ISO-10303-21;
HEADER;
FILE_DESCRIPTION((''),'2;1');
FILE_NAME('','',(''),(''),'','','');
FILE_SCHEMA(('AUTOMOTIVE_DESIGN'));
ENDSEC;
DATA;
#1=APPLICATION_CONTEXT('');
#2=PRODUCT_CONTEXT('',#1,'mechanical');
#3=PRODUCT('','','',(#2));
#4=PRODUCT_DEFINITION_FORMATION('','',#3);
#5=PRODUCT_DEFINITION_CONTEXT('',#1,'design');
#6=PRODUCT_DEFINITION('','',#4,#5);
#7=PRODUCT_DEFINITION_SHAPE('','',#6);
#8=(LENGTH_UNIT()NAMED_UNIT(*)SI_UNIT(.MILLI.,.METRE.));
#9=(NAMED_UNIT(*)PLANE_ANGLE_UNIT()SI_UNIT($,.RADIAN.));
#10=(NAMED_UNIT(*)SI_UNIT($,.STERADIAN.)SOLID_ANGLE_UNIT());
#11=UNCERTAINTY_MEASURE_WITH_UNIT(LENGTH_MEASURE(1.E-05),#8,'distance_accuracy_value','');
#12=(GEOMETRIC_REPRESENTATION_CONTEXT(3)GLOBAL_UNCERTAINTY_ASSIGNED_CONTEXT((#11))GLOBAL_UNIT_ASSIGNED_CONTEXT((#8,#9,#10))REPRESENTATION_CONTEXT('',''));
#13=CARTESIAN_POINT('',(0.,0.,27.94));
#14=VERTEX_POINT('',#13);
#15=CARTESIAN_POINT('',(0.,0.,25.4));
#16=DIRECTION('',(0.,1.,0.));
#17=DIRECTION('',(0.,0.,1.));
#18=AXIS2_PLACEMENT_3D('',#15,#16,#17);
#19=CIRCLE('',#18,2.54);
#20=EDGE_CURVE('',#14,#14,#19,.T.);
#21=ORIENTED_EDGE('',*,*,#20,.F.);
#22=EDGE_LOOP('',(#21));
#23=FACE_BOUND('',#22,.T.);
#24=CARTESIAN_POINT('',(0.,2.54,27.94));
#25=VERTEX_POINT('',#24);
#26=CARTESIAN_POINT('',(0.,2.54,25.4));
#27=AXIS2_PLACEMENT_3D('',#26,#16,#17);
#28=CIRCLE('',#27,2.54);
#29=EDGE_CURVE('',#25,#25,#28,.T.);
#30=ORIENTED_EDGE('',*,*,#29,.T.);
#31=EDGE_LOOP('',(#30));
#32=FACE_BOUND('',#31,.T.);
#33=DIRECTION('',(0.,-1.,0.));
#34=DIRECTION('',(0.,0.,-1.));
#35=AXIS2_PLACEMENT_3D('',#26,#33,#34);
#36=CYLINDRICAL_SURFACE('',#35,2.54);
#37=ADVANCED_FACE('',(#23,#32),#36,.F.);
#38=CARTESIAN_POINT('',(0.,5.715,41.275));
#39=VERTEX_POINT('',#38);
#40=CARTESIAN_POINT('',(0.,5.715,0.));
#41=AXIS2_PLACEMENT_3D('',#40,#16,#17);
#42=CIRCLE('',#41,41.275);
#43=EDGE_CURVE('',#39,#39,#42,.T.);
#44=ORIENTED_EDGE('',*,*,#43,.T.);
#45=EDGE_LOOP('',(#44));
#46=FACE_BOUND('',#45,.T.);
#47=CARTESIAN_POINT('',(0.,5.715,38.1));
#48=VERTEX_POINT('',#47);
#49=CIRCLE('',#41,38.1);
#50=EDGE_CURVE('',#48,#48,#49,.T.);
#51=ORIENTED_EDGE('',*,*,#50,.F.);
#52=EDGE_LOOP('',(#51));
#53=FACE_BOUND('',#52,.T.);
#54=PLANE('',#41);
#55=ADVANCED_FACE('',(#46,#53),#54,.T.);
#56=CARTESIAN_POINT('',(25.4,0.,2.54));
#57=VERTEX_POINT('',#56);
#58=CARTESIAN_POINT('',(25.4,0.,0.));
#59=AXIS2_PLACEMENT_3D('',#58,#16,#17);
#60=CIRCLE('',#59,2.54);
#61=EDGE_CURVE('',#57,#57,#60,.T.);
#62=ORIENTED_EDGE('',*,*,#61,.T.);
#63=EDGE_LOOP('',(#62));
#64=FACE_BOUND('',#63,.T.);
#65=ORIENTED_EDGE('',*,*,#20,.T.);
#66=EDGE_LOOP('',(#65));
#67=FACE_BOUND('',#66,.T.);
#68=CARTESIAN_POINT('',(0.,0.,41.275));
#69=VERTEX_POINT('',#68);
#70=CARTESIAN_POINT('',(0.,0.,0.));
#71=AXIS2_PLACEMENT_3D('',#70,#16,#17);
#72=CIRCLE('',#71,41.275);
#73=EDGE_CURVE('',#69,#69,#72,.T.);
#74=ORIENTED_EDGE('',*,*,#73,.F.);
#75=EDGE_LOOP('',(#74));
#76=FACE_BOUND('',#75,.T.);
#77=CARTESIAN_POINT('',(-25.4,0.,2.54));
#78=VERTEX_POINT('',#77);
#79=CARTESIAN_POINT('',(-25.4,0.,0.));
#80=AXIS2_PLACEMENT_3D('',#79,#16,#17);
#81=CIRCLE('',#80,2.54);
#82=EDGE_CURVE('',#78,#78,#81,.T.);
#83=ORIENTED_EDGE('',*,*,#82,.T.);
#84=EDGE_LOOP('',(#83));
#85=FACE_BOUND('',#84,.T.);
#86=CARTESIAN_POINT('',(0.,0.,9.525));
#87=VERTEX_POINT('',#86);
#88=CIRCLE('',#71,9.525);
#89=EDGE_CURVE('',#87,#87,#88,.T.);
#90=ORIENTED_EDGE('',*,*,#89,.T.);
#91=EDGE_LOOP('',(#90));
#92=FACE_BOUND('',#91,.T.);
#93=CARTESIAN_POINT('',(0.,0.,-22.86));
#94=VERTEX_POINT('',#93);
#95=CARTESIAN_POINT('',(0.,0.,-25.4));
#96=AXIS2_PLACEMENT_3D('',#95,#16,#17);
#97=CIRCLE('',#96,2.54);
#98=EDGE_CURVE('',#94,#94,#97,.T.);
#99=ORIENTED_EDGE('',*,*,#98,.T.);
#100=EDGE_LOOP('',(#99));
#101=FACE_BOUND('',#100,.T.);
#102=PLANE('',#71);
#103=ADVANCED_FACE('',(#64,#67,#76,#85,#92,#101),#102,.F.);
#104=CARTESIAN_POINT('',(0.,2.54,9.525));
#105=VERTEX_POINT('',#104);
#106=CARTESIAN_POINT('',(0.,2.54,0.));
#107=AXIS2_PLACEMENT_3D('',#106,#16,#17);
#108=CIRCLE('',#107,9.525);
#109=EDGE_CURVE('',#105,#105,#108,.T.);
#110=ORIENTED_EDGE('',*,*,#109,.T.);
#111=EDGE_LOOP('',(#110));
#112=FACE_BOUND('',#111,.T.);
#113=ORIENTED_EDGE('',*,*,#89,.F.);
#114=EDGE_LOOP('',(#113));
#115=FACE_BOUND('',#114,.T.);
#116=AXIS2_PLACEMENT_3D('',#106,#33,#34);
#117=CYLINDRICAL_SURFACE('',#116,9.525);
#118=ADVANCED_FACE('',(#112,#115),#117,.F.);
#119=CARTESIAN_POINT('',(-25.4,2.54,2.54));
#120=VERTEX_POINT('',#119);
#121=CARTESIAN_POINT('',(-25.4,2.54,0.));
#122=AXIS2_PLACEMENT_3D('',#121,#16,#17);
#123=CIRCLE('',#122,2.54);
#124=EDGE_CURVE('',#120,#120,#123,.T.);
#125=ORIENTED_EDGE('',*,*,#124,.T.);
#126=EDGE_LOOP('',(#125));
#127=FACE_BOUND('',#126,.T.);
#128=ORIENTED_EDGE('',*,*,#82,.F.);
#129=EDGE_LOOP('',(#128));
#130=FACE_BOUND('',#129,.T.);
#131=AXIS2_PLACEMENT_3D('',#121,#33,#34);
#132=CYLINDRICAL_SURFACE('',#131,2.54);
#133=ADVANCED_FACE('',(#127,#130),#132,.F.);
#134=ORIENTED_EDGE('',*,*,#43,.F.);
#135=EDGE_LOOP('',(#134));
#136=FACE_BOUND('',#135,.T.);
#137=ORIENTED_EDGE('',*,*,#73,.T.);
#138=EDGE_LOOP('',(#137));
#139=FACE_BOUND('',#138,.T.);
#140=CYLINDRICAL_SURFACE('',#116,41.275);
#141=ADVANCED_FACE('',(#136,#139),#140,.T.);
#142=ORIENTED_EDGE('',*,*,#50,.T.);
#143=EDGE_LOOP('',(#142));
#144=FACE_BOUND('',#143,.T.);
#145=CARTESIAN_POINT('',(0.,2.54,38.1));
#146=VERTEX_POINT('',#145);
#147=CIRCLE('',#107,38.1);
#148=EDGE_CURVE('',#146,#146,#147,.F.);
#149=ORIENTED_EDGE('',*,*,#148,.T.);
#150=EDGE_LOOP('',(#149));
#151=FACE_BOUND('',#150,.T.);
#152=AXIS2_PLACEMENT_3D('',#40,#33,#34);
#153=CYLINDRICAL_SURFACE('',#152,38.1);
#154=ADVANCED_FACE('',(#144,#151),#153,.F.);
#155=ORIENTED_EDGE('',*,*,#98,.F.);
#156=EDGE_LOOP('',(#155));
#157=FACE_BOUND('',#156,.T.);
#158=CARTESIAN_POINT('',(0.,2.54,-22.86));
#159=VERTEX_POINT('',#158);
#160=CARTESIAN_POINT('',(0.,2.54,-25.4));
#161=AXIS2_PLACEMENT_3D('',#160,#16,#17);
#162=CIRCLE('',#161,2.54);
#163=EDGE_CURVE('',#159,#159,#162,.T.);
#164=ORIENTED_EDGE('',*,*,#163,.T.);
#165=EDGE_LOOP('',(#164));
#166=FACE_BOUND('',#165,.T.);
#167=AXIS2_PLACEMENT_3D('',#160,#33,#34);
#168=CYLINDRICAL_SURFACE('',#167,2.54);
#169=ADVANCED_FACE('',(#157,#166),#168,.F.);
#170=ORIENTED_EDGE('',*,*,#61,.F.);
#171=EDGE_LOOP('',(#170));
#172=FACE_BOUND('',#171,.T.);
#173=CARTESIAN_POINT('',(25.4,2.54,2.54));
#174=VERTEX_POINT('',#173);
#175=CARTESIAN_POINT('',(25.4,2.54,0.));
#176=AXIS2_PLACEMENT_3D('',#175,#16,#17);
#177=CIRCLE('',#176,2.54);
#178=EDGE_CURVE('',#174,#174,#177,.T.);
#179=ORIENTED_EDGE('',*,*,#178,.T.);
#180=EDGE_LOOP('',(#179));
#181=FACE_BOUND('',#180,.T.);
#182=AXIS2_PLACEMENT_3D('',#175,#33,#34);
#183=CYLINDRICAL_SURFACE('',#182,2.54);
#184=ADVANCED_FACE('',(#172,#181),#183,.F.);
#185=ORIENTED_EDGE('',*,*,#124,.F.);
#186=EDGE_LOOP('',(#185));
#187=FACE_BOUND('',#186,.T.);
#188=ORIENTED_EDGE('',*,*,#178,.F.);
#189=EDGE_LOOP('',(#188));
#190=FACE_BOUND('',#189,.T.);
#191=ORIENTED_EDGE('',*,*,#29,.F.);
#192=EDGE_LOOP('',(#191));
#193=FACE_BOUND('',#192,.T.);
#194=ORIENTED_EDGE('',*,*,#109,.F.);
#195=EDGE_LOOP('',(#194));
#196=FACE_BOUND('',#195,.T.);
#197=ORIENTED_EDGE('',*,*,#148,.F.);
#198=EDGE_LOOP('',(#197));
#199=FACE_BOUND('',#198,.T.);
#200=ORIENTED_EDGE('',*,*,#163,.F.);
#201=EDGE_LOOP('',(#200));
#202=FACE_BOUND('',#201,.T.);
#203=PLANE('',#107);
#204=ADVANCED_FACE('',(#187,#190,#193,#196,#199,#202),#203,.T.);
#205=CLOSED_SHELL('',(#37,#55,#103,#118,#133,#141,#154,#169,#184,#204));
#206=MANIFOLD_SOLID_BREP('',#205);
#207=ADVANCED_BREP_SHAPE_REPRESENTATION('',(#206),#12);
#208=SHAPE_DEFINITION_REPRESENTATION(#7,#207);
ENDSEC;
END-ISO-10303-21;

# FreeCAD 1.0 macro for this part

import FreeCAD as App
import Part
import Sketcher
Q = App.Units.Quantity

doc = App.newDocument("Part")
body = doc.addObject("PartDesign::Body", "Body")

# Sketch on XZ plane
sketch1 = doc.addObject("Sketcher::SketchObject", "Sketch")
body.addObject(sketch1)
sketch1.AttachmentSupport = (doc.XZ_Plane, [""])
sketch1.MapMode = "FlatFace"
sketch1.addGeometry(Part.Circle(App.Vector(0, 0, 0), App.Vector(0, 0, 1), 41.275), False)
sketch1.addGeometry(Part.Circle(App.Vector(0, -25.4, 0), App.Vector(0, 0, 1), 2.54), False)
sketch1.addGeometry(Part.Circle(App.Vector(-25.4, 0, 0), App.Vector(0, 0, 1), 2.54), False)
sketch1.addGeometry(Part.Circle(App.Vector(25.4, 0, 0), App.Vector(0, 0, 1), 2.54), False)
sketch1.addGeometry(Part.Circle(App.Vector(0, 0, 0), App.Vector(0, 0, 1), 9.525), False)
sketch1.addGeometry(Part.Circle(App.Vector(0, 25.4, 0), App.Vector(0, 0, 1), 2.54), False)
sketch1.addConstraint(Sketcher.Constraint("Coincident", 0, 3, -1, 1))
sketch1.addConstraint(Sketcher.Constraint("Coincident", 4, 3, -1, 1))
sketch1.addConstraint(Sketcher.Constraint("Equal", 1, 2))
sketch1.addConstraint(Sketcher.Constraint("Equal", 2, 3))
sketch1.addConstraint(Sketcher.Constraint("Equal", 3, 5))
sketch1.addConstraint(Sketcher.Constraint("Symmetric", 2, 3, 3, 3, -1, 1))
sketch1.addConstraint(Sketcher.Constraint("Symmetric", 1, 3, 5, 3, -1, 1))
sketch1.addConstraint(Sketcher.Constraint("PointOnObject", 1, 3, -2))
sketch1.addConstraint(Sketcher.Constraint("PointOnObject", 2, 3, -1))
sketch1.addConstraint(Sketcher.Constraint("Diameter", 1, Q("0.2 in")))
sketch1.addConstraint(Sketcher.Constraint("Diameter", 0, Q("3.25 in")))
sketch1.addConstraint(Sketcher.Constraint("Diameter", 4, Q("0.75 in")))
sketch1.addConstraint(Sketcher.Constraint("DistanceY", 1, 3, -1, 1, Q("1 in")))
sketch1.addConstraint(Sketcher.Constraint("DistanceX", 2, 3, -1, 1, Q("1 in")))
pad1 = doc.addObject("PartDesign::Pad", "Pad")
body.addObject(pad1)
pad1.Profile = sketch1
pad1.Length = Q("0.1 in")
pad1.Reversed = True

# Sketch on XZ plane
sketch2 = doc.addObject("Sketcher::SketchObject", "Sketch001")
body.addObject(sketch2)
sketch2.AttachmentSupport = (doc.XZ_Plane, [""])
sketch2.MapMode = "FlatFace"
sketch2.AttachmentOffset = App.Placement(App.Vector(0, 0, -0.1 * 25.4), App.Rotation())
sketch2.addGeometry(Part.Circle(App.Vector(0, 0, 0), App.Vector(0, 0, 1), 41.275), False)
sketch2.addGeometry(Part.Circle(App.Vector(0, 0, 0), App.Vector(0, 0, 1), 38.1), False)
sketch2.addConstraint(Sketcher.Constraint("Coincident", 0, 3, -1, 1))
sketch2.addConstraint(Sketcher.Constraint("Coincident", 1, 3, -1, 1))
sketch2.addConstraint(Sketcher.Constraint("Diameter", 1, Q("3 in")))
sketch2.addConstraint(Sketcher.Constraint("Diameter", 0, Q("3.25 in")))
pad2 = doc.addObject("PartDesign::Pad", "Pad001")
body.addObject(pad2)
pad2.Profile = sketch2
pad2.Length = Q("0.125 in")
pad2.Reversed = True

doc.recompute()
